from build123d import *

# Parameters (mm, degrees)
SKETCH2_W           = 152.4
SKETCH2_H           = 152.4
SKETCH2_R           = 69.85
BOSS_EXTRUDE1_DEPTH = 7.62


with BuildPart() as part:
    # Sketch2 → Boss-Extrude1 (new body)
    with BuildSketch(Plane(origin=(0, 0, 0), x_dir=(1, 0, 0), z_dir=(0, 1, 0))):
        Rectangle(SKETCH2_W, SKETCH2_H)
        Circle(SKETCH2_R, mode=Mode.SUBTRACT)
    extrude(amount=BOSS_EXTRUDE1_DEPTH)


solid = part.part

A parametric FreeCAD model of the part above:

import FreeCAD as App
import Part
import Sketcher
Q = App.Units.Quantity


def add_polygon(sketch, points):
    """Adds a closed chain of lines whose ends are joined by coincident constraints."""
    first, n = sketch.GeometryCount, len(points)
    for a, b in zip(points, points[1:] + points[:1]):
        sketch.addGeometry(Part.LineSegment(App.Vector(*a, 0), App.Vector(*b, 0)), False)
    for i in range(n):
        sketch.addConstraint(Sketcher.Constraint("Coincident", first + i, 2, first + (i + 1) % n, 1))

doc = App.newDocument("Part")
body = doc.addObject("PartDesign::Body", "Body")

sketch1 = body.newObject("Sketcher::SketchObject", "Sketch")
sketch1.AttachmentSupport = (doc.getObject("XZ_Plane"), [""])
sketch1.MapMode = "FlatFace"
add_polygon(sketch1, [(-76, -76), (-76, 76), (76, 76), (76, -76)])
sketch1.addGeometry(Part.Circle(App.Vector(0, 0, 0), App.Vector(0, 0, 1), 70), False)
sketch1.addConstraint([
    Sketcher.Constraint("Vertical", 0),
    Sketcher.Constraint("Horizontal", 1),
    Sketcher.Constraint("Vertical", 2),
    Sketcher.Constraint("Horizontal", 3),
    Sketcher.Constraint("Coincident", 4, 3, -1, 1),
    Sketcher.Constraint("Symmetric", 0, 2, 2, 2, -1, 1),
    Sketcher.Constraint("Equal", 3, 0),
    Sketcher.Constraint("Diameter", 4, Q("5.5 in")),
    Sketcher.Constraint("DistanceX", 1, 1, 1, 2, Q("6 in")),
])
pad1 = body.newObject("PartDesign::Pad", "Pad")
pad1.Profile = sketch1
pad1.Length = Q("0.3 in")
pad1.Reversed = True

doc.recompute()
